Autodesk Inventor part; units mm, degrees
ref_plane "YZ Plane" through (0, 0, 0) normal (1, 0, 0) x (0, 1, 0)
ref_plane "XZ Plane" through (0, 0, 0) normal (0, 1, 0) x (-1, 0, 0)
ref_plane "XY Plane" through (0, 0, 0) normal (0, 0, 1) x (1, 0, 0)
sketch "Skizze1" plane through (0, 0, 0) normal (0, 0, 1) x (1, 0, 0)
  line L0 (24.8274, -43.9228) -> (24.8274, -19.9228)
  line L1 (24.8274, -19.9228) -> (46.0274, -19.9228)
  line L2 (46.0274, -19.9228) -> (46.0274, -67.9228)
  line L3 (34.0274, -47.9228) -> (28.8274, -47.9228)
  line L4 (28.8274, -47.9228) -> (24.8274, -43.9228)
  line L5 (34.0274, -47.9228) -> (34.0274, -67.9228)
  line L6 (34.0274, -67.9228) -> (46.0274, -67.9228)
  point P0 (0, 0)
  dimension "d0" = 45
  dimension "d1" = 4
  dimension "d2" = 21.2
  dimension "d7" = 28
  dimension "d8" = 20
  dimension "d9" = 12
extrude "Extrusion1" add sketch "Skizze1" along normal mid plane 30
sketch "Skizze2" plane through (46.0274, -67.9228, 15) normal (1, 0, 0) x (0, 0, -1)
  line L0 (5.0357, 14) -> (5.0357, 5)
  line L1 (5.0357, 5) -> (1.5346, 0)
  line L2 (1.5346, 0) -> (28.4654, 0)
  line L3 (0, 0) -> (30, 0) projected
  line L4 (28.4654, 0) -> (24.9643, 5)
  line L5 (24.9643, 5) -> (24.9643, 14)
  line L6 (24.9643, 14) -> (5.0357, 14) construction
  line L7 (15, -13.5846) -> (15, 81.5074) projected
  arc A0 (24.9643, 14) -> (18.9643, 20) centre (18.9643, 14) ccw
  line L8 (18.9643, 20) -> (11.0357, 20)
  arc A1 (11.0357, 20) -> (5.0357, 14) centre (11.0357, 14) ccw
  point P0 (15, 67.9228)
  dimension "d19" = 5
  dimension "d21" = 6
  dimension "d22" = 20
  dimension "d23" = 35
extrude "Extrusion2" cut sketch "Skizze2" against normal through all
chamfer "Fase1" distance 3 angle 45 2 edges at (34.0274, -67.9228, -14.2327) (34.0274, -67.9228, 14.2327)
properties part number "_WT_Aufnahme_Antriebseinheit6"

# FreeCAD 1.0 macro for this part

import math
import FreeCAD as App
import Part
import Sketcher
from FreeCAD import Vector
Q = App.Units.Quantity


def edges_at(feature, points):
    """Names of the edges that pass closest to the given points."""
    edges = feature.Shape.Edges
    near = lambda p: min(range(len(edges)), key=lambda i: edges[i].distToShape(Part.Vertex(*p))[0])
    return sorted({f"Edge{near(p) + 1}" for p in points})


def add_polygon(sketch, points):
    """Adds a closed chain of lines whose ends are joined by coincident constraints."""
    first, n = sketch.GeometryCount, len(points)
    for a, b in zip(points, points[1:] + points[:1]):
        sketch.addGeometry(Part.LineSegment(App.Vector(*a, 0), App.Vector(*b, 0)), False)
    for i in range(n):
        sketch.addConstraint(Sketcher.Constraint("Coincident", first + i, 2, first + (i + 1) % n, 1))

doc = App.newDocument("Part")
body = doc.addObject("PartDesign::Body", "Body")

sketch1 = body.newObject("Sketcher::SketchObject", "Sketch")
sketch1.AttachmentSupport = (doc.getObject("XY_Plane"), [""])
sketch1.MapMode = "FlatFace"
add_polygon(sketch1, [(25, -20), (25, -44), (29, -48), (34, -48), (34, -68), (46, -68), (46, -20)])
sketch1.addConstraint([
    Sketcher.Constraint("Vertical", 0),
    Sketcher.Constraint("Horizontal", 2),
    Sketcher.Constraint("Vertical", 3),
    Sketcher.Constraint("Horizontal", 4),
    Sketcher.Constraint("Vertical", 5),
    Sketcher.Constraint("Horizontal", 6),
    Sketcher.Constraint("DistanceX", 4, 1, 4, 2, Q("12 mm")),
    Sketcher.Constraint("DistanceY", 3, 2, 3, 1, Q("20 mm")),
    Sketcher.Constraint("Angle", 1, Q("-45 deg")),
    Sketcher.Constraint("DistanceX", 6, 2, 6, 1, Q("21.2 mm")),
    Sketcher.Constraint("DistanceX", 0, 2, 1, 2, Q("4 mm")),
    Sketcher.Constraint("DistanceY", 2, 2, 5, 2, Q("28 mm")),
    Sketcher.Constraint("DistanceX", -1, 1, 0, 2, Q("24.8274 mm")),
    Sketcher.Constraint("DistanceY", 0, 2, -1, 1, Q("43.9228 mm")),
])
pad1 = body.newObject("PartDesign::Pad", "Pad")
pad1.Profile = sketch1
pad1.Length = 30
pad1.Midplane = True

sketch2 = body.newObject("Sketcher::SketchObject", "Sketch001")
sketch2.AttachmentSupport = (doc.getObject("YZ_Plane"), [""])
sketch2.MapMode = "FlatFace"
sketch2.AttachmentOffset = App.Placement(Vector(0, 0, 46.0274), App.Rotation())
sketch2.addGeometry([
    Part.ArcOfCircle(Part.Circle(Vector(-54, 4, 0), Vector(0, 0, 1), 6), math.radians(0), math.radians(90)),
    Part.LineSegment(Vector(-54, 10, 0), Vector(-63, 10, 0)),
    Part.LineSegment(Vector(-63, 10, 0), Vector(-68, 13, 0)),
    Part.LineSegment(Vector(-68, 13, 0), Vector(-68, -13, 0)),
    Part.LineSegment(Vector(-68, -13, 0), Vector(-63, -10, 0)),
    Part.LineSegment(Vector(-63, -10, 0), Vector(-54, -10, 0)),
    Part.ArcOfCircle(Part.Circle(Vector(-54, -4, 0), Vector(0, 0, 1), 6), math.radians(-90), math.radians(0)),
    Part.LineSegment(Vector(-48, -4, 0), Vector(-48, 4, 0)),
], False)
sketch2.addConstraint([
    Sketcher.Constraint("Tangent", 0, 2, 1, 1),
    Sketcher.Constraint("Coincident", 1, 2, 2, 1),
    Sketcher.Constraint("Coincident", 2, 2, 3, 1),
    Sketcher.Constraint("Coincident", 3, 2, 4, 1),
    Sketcher.Constraint("Coincident", 4, 2, 5, 1),
    Sketcher.Constraint("Tangent", 5, 2, 6, 1),
    Sketcher.Constraint("Tangent", 6, 2, 7, 1),
    Sketcher.Constraint("Tangent", 7, 2, 0, 1),
    Sketcher.Constraint("Horizontal", 1),
    Sketcher.Constraint("Vertical", 3),
    Sketcher.Constraint("Horizontal", 5),
    Sketcher.Constraint("Vertical", 7),
    Sketcher.Constraint("Equal", 0, 6),
    Sketcher.Constraint("Symmetric", 1, 2, 4, 2, -1),
    Sketcher.Constraint("Equal", 2, 4),
    Sketcher.Constraint("Radius", 0, Q("6 mm")),
    Sketcher.Constraint("Angle", 4, Q("35.0005 deg")),
    Sketcher.Constraint("DistanceX", 2, 2, 1, 2, Q("5 mm")),
    Sketcher.Constraint("DistanceX", 1, 2, 1, 1, Q("9 mm")),
    Sketcher.Constraint("DistanceY", 3, 2, 3, 1, Q("26.9308 mm")),
    Sketcher.Constraint("DistanceX", 0, 3, -1, 1, Q("53.9228 mm")),
])
pocket1 = body.newObject("PartDesign::Pocket", "Pocket")
pocket1.Profile = sketch2
pocket1.Type = "ThroughAll"
doc.recompute()

chamfer = body.newObject("PartDesign::Chamfer", "Chamfer")
chamfer.Base = (pocket1, edges_at(pocket1, [(34.027, -67.923, -14.233), (34.027, -67.923, 14.233)]))
chamfer.Size = 3

doc.recompute()
